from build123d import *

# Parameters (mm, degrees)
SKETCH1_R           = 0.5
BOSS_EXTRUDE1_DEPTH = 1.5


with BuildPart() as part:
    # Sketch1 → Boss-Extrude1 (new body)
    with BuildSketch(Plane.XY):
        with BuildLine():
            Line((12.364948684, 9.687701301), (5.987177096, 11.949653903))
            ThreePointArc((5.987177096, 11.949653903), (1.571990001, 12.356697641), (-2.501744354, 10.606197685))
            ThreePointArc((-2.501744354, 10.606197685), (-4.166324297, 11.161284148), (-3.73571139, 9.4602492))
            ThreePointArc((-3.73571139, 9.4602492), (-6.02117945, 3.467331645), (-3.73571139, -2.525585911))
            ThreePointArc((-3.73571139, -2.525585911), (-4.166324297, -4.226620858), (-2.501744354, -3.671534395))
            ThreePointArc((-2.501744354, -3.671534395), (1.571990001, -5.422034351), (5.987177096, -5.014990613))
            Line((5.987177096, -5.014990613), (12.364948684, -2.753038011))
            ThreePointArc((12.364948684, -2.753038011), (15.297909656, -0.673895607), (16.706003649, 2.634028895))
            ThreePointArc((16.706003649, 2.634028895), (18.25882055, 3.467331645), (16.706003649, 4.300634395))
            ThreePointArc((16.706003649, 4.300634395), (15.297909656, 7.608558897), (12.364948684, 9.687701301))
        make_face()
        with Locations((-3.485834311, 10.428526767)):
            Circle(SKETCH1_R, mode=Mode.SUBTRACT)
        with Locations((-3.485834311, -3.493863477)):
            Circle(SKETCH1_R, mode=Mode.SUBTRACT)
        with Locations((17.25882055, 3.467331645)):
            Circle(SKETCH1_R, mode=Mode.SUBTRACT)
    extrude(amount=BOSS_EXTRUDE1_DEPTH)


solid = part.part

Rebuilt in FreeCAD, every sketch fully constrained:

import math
import FreeCAD as App
import Part
import Sketcher
from FreeCAD import Vector

doc = App.newDocument("Part")
body = doc.addObject("PartDesign::Body", "Body")

sketch1 = body.newObject("Sketcher::SketchObject", "Sketch")
sketch1.AttachmentSupport = (doc.getObject("XY_Plane"), [""])
sketch1.MapMode = "FlatFace"
sketch1.addGeometry(Part.LineSegment(Vector(12.364949, 9.687701, 0), Vector(5.987177, 11.949654, 0)), False)
sketch1.addGeometry(Part.ArcOfCircle(Part.Circle(Vector(2.978821, 3.467332, 0), Vector(0, 0, 1), 9), math.radians(70.472343), math.radians(127.513739)), False)
sketch1.addGeometry(Part.ArcOfCircle(Part.Circle(Vector(-3.485834, 10.428527, 0), Vector(0, 0, 1), 1), math.radians(10.234127), math.radians(255.529762)), False)
sketch1.addGeometry(Part.ArcOfCircle(Part.Circle(Vector(2.978821, 3.467332, 0), Vector(0, 0, 1), 9), math.radians(138.250149), math.radians(221.749851)), False)
sketch1.addGeometry(Part.ArcOfCircle(Part.Circle(Vector(-3.485834, -3.493863, 0), Vector(0, 0, 1), 1), math.radians(104.470238), math.radians(349.765873)), False)
sketch1.addGeometry(Part.ArcOfCircle(Part.Circle(Vector(2.978821, 3.467332, 0), Vector(0, 0, 1), 9), math.radians(-127.513739), math.radians(-70.472343)), False)
sketch1.addGeometry(Part.LineSegment(Vector(5.987177, -5.014991, 0), Vector(12.364949, -2.753038, 0)), False)
sketch1.addGeometry(Part.ArcOfCircle(Part.Circle(Vector(10.158821, 3.467332, 0), Vector(0, 0, 1), 6.6), math.radians(-70.472343), math.radians(-7.253409)), False)
sketch1.addGeometry(Part.ArcOfCircle(Part.Circle(Vector(17.258821, 3.467332, 0), Vector(0, 0, 1), 1), math.radians(-123.56048), math.radians(123.56048)), False)
sketch1.addGeometry(Part.ArcOfCircle(Part.Circle(Vector(10.158821, 3.467332, 0), Vector(0, 0, 1), 6.6), math.radians(7.253409), math.radians(70.472343)), False)
sketch1.addGeometry(Part.Circle(Vector(-3.485834, -3.493863, 0), Vector(0, 0, 1), 0.5), False)
sketch1.addGeometry(Part.Circle(Vector(-3.485834, 10.428527, 0), Vector(0, 0, 1), 0.5), False)
sketch1.addGeometry(Part.Circle(Vector(17.258821, 3.467332, 0), Vector(0, 0, 1), 0.5), False)
sketch1.addConstraint(Sketcher.Constraint("Tangent", 0, 2, 1, 1))
sketch1.addConstraint(Sketcher.Constraint("Coincident", 1, 2, 2, 1))
sketch1.addConstraint(Sketcher.Constraint("Coincident", 2, 2, 3, 1))
sketch1.addConstraint(Sketcher.Constraint("Coincident", 3, 2, 4, 1))
sketch1.addConstraint(Sketcher.Constraint("Coincident", 4, 2, 5, 1))
sketch1.addConstraint(Sketcher.Constraint("Tangent", 5, 2, 6, 1))
sketch1.addConstraint(Sketcher.Constraint("Tangent", 6, 2, 7, 1))
sketch1.addConstraint(Sketcher.Constraint("Coincident", 7, 2, 8, 1))
sketch1.addConstraint(Sketcher.Constraint("Coincident", 8, 2, 9, 1))
sketch1.addConstraint(Sketcher.Constraint("Tangent", 9, 2, 0, 1))
sketch1.addConstraint(Sketcher.Constraint("Coincident", 3, 3, 1, 3))
sketch1.addConstraint(Sketcher.Constraint("Coincident", 5, 3, 1, 3))
sketch1.addConstraint(Sketcher.Constraint("Coincident", 9, 3, 7, 3))
sketch1.addConstraint(Sketcher.Constraint("Coincident", 10, 3, 4, 3))
sketch1.addConstraint(Sketcher.Constraint("Coincident", 11, 3, 2, 3))
sketch1.addConstraint(Sketcher.Constraint("Coincident", 12, 3, 8, 3))
sketch1.addConstraint(Sketcher.Constraint("Equal", 1, 3))
sketch1.addConstraint(Sketcher.Constraint("Equal", 2, 4))
sketch1.addConstraint(Sketcher.Constraint("Equal", 3, 5))
sketch1.addConstraint(Sketcher.Constraint("Equal", 4, 8))
sketch1.addConstraint(Sketcher.Constraint("Equal", 7, 9))
sketch1.addConstraint(Sketcher.Constraint("Equal", 10, 11))
sketch1.addConstraint(Sketcher.Constraint("Equal", 11, 12))
sketch1.addConstraint(Sketcher.Constraint("Horizontal", 5, 3, 7, 3))
sketch1.addConstraint(Sketcher.Constraint("Horizontal", 7, 3, 8, 3))
sketch1.addConstraint(Sketcher.Constraint("Vertical", 2, 3, 4, 3))
sketch1.addConstraint(Sketcher.Constraint("Vertical", 2, 2, 3, 2))
sketch1.addConstraint(Sketcher.Constraint("Diameter", 10, 1.0))
sketch1.addConstraint(Sketcher.Constraint("Radius", 1, 9.0))
sketch1.addConstraint(Sketcher.Constraint("Radius", 2, 1.0))
sketch1.addConstraint(Sketcher.Constraint("Radius", 7, 6.6))
sketch1.addConstraint(Sketcher.Constraint("DistanceX", 7, 3, 8, 3, 7.1))
sketch1.addConstraint(Sketcher.Constraint("DistanceX", 3, 3, 7, 3, 7.18))
sketch1.addConstraint(Sketcher.Constraint("DistanceY", -1, 1, 9, 2, 9.687701))
sketch1.addConstraint(Sketcher.Constraint("DistanceX", -1, 1, 1, 3, 2.978821))
sketch1.addConstraint(Sketcher.Constraint("DistanceX", 2, 2, -1, 1, 3.735711))
sketch1.addConstraint(Sketcher.Constraint("DistanceY", 4, 3, 2, 3, 13.92239))
pad1 = body.newObject("PartDesign::Pad", "Pad")
pad1.Profile = sketch1
pad1.Length = 1.5

doc.recompute()
